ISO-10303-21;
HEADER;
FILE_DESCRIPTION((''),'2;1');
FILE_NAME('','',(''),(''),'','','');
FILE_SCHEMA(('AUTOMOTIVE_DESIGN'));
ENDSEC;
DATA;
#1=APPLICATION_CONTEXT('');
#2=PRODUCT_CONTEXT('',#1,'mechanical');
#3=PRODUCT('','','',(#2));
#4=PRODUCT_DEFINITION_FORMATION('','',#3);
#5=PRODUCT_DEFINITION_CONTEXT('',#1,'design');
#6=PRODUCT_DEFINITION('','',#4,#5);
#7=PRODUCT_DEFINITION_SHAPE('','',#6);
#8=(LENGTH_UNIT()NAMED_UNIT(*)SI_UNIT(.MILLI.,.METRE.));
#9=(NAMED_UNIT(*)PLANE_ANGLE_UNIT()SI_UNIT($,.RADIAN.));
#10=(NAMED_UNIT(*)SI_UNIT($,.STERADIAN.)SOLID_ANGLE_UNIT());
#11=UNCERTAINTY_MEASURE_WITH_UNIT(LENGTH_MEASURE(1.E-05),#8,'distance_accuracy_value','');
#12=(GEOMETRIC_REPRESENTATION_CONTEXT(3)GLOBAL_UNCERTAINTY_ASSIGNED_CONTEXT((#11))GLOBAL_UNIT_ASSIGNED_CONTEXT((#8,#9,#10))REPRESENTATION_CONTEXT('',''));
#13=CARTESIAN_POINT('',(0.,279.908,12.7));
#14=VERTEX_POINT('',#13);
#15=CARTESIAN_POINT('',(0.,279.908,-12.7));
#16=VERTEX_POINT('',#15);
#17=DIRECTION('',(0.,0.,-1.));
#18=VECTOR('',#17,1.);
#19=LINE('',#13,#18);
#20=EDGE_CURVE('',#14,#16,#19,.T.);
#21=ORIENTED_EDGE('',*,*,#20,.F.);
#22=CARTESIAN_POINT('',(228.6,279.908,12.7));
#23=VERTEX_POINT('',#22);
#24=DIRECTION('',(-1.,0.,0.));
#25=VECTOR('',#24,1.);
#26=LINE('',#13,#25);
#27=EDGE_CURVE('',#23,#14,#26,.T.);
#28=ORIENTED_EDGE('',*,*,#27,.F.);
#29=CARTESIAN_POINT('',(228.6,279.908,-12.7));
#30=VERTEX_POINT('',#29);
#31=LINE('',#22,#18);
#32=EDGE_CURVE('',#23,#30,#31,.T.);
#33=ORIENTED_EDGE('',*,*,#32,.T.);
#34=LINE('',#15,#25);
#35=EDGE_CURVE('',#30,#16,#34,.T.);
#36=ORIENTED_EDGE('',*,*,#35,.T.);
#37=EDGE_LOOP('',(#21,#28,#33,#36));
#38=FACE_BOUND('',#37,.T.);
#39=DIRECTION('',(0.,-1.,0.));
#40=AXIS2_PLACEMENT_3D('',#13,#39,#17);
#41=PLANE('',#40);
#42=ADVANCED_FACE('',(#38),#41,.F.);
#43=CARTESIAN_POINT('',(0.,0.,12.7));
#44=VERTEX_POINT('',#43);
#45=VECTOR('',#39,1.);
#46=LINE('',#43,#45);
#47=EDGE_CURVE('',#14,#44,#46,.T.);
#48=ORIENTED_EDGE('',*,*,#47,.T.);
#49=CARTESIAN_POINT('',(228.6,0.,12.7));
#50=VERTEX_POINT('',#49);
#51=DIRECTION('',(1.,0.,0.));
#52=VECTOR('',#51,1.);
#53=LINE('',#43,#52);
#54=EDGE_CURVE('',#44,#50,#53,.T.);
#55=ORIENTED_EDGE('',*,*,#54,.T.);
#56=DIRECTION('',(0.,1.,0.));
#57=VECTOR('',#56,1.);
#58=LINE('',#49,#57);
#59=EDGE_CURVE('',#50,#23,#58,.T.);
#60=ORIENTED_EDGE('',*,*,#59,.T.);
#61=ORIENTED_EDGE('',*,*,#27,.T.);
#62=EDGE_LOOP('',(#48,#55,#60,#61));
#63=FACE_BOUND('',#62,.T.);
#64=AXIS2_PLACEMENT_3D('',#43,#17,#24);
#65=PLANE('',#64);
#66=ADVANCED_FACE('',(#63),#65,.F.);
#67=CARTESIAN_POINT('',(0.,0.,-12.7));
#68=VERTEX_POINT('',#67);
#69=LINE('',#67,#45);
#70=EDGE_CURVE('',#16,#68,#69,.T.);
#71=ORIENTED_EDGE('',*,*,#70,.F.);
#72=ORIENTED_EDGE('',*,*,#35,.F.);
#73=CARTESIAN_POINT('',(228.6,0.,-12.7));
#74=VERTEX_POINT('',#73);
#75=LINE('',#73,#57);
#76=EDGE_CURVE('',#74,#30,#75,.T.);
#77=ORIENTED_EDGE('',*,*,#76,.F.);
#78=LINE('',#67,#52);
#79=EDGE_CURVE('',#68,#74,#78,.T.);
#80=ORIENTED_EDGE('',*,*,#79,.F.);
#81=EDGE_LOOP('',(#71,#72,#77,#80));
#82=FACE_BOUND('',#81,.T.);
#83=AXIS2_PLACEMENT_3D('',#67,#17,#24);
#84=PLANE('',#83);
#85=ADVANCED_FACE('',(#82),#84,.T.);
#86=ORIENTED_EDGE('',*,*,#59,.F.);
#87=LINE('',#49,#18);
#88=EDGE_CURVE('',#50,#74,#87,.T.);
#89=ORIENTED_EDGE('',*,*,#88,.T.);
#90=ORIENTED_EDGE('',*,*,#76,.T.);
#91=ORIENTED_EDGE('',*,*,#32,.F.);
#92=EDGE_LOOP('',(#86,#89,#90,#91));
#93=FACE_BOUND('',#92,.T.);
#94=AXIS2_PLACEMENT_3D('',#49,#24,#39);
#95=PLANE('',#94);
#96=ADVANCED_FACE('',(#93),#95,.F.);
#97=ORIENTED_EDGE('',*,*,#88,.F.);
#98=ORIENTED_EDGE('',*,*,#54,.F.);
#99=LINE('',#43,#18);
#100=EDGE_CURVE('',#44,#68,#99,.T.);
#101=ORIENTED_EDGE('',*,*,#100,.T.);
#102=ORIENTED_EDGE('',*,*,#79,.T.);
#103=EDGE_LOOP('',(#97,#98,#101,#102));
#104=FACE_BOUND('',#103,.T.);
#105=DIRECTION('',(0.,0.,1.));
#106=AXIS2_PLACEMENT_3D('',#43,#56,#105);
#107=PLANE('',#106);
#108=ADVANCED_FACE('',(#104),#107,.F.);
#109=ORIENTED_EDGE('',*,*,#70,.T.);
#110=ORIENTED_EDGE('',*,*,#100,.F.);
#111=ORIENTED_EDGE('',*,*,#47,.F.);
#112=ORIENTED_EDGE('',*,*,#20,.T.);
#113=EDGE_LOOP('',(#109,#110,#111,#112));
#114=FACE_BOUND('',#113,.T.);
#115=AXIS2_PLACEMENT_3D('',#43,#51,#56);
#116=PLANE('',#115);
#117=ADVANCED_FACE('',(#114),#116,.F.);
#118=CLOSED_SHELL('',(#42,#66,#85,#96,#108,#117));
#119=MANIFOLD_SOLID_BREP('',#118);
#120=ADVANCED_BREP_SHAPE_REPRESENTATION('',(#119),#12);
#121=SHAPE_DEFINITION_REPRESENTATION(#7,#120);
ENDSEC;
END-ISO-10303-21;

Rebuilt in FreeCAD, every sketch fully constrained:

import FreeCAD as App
import Part
import Sketcher
Q = App.Units.Quantity

doc = App.newDocument("Part")
body = doc.addObject("PartDesign::Body", "Body")

# Sketch on XY plane
sketch1 = body.newObject("Sketcher::SketchObject", "Sketch")
sketch1.AttachmentSupport = (doc.getObject("XY_Plane"), [""])
sketch1.MapMode = "FlatFace"
sketch1.addGeometry(Part.LineSegment(App.Vector(0, 280, 0), App.Vector(0, 0, 0)), False)
sketch1.addGeometry(Part.LineSegment(App.Vector(0, 0, 0), App.Vector(229, 0, 0)), False)
sketch1.addGeometry(Part.LineSegment(App.Vector(229, 0, 0), App.Vector(229, 280, 0)), False)
sketch1.addGeometry(Part.LineSegment(App.Vector(229, 280, 0), App.Vector(0, 280, 0)), False)
sketch1.addConstraint(Sketcher.Constraint("Coincident", 0, 2, 1, 1))
sketch1.addConstraint(Sketcher.Constraint("Coincident", 1, 2, 2, 1))
sketch1.addConstraint(Sketcher.Constraint("Coincident", 2, 2, 3, 1))
sketch1.addConstraint(Sketcher.Constraint("Coincident", 3, 2, 0, 1))
sketch1.addConstraint(Sketcher.Constraint("Vertical", 0))
sketch1.addConstraint(Sketcher.Constraint("Horizontal", 1))
sketch1.addConstraint(Sketcher.Constraint("Vertical", 2))
sketch1.addConstraint(Sketcher.Constraint("Horizontal", 3))
sketch1.addConstraint(Sketcher.Constraint("Coincident", 0, 2, -1, 1))
sketch1.addConstraint(Sketcher.Constraint("DistanceX", 1, 1, 1, 2, Q("9 in")))
sketch1.addConstraint(Sketcher.Constraint("DistanceY", 0, 2, 0, 1, Q("11.02 in")))
pad1 = body.newObject("PartDesign::Pad", "Pad")
pad1.Profile = sketch1
pad1.Length = Q("1 in")
pad1.Midplane = True

doc.recompute()
